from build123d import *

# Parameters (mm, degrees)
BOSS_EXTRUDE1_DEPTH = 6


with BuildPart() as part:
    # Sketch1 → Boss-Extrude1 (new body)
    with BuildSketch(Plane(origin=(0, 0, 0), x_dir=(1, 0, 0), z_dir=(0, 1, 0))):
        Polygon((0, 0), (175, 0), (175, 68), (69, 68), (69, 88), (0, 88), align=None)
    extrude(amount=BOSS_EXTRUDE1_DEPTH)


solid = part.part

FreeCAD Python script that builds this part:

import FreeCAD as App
import Part
import Sketcher

V = App.Vector

doc = App.newDocument("Part")
body = doc.addObject("PartDesign::Body", "Body")

# Sketch on XZ plane
sketch1 = body.newObject("Sketcher::SketchObject", "Sketch")
sketch1.AttachmentSupport = (doc.getObject("XZ_Plane"), [""])
sketch1.MapMode = "FlatFace"
sketch1.addGeometry([
    Part.LineSegment(V(0, 0, 0), V(175, 0, 0)),  # 0
    Part.LineSegment(V(175, 0, 0), V(175, -68, 0)),  # 1
    Part.LineSegment(V(175, -68, 0), V(69, -68, 0)),  # 2
    Part.LineSegment(V(69, -68, 0), V(69, -88, 0)),  # 3
    Part.LineSegment(V(69, -88, 0), V(0, -88, 0)),  # 4
    Part.LineSegment(V(0, -88, 0), V(0, 0, 0)),  # 5
], False)
sketch1.addConstraint([
    Sketcher.Constraint("Coincident", 0, 2, 1, 1),
    Sketcher.Constraint("Coincident", 1, 2, 2, 1),
    Sketcher.Constraint("Coincident", 2, 2, 3, 1),
    Sketcher.Constraint("Coincident", 3, 2, 4, 1),
    Sketcher.Constraint("Coincident", 4, 2, 5, 1),
    Sketcher.Constraint("Coincident", 5, 2, 0, 1),
    Sketcher.Constraint("Horizontal", 0),
    Sketcher.Constraint("Vertical", 1),
    Sketcher.Constraint("Horizontal", 2),
    Sketcher.Constraint("Vertical", 3),
    Sketcher.Constraint("Horizontal", 4),
    Sketcher.Constraint("Vertical", 5),
    Sketcher.Constraint("Coincident", 5, 2, -1, 1),
    Sketcher.Constraint("DistanceX", 0, 1, 0, 2, 175.0),
    Sketcher.Constraint("DistanceX", 2, 2, 2, 1, 106.0),
    Sketcher.Constraint("DistanceY", 1, 2, 1, 1, 68.0),
    Sketcher.Constraint("DistanceY", 3, 2, 3, 1, 20.0),
])
pad1 = body.newObject("PartDesign::Pad", "Pad")
pad1.Profile = sketch1
pad1.Length = 6
pad1.Reversed = True

doc.recompute()
